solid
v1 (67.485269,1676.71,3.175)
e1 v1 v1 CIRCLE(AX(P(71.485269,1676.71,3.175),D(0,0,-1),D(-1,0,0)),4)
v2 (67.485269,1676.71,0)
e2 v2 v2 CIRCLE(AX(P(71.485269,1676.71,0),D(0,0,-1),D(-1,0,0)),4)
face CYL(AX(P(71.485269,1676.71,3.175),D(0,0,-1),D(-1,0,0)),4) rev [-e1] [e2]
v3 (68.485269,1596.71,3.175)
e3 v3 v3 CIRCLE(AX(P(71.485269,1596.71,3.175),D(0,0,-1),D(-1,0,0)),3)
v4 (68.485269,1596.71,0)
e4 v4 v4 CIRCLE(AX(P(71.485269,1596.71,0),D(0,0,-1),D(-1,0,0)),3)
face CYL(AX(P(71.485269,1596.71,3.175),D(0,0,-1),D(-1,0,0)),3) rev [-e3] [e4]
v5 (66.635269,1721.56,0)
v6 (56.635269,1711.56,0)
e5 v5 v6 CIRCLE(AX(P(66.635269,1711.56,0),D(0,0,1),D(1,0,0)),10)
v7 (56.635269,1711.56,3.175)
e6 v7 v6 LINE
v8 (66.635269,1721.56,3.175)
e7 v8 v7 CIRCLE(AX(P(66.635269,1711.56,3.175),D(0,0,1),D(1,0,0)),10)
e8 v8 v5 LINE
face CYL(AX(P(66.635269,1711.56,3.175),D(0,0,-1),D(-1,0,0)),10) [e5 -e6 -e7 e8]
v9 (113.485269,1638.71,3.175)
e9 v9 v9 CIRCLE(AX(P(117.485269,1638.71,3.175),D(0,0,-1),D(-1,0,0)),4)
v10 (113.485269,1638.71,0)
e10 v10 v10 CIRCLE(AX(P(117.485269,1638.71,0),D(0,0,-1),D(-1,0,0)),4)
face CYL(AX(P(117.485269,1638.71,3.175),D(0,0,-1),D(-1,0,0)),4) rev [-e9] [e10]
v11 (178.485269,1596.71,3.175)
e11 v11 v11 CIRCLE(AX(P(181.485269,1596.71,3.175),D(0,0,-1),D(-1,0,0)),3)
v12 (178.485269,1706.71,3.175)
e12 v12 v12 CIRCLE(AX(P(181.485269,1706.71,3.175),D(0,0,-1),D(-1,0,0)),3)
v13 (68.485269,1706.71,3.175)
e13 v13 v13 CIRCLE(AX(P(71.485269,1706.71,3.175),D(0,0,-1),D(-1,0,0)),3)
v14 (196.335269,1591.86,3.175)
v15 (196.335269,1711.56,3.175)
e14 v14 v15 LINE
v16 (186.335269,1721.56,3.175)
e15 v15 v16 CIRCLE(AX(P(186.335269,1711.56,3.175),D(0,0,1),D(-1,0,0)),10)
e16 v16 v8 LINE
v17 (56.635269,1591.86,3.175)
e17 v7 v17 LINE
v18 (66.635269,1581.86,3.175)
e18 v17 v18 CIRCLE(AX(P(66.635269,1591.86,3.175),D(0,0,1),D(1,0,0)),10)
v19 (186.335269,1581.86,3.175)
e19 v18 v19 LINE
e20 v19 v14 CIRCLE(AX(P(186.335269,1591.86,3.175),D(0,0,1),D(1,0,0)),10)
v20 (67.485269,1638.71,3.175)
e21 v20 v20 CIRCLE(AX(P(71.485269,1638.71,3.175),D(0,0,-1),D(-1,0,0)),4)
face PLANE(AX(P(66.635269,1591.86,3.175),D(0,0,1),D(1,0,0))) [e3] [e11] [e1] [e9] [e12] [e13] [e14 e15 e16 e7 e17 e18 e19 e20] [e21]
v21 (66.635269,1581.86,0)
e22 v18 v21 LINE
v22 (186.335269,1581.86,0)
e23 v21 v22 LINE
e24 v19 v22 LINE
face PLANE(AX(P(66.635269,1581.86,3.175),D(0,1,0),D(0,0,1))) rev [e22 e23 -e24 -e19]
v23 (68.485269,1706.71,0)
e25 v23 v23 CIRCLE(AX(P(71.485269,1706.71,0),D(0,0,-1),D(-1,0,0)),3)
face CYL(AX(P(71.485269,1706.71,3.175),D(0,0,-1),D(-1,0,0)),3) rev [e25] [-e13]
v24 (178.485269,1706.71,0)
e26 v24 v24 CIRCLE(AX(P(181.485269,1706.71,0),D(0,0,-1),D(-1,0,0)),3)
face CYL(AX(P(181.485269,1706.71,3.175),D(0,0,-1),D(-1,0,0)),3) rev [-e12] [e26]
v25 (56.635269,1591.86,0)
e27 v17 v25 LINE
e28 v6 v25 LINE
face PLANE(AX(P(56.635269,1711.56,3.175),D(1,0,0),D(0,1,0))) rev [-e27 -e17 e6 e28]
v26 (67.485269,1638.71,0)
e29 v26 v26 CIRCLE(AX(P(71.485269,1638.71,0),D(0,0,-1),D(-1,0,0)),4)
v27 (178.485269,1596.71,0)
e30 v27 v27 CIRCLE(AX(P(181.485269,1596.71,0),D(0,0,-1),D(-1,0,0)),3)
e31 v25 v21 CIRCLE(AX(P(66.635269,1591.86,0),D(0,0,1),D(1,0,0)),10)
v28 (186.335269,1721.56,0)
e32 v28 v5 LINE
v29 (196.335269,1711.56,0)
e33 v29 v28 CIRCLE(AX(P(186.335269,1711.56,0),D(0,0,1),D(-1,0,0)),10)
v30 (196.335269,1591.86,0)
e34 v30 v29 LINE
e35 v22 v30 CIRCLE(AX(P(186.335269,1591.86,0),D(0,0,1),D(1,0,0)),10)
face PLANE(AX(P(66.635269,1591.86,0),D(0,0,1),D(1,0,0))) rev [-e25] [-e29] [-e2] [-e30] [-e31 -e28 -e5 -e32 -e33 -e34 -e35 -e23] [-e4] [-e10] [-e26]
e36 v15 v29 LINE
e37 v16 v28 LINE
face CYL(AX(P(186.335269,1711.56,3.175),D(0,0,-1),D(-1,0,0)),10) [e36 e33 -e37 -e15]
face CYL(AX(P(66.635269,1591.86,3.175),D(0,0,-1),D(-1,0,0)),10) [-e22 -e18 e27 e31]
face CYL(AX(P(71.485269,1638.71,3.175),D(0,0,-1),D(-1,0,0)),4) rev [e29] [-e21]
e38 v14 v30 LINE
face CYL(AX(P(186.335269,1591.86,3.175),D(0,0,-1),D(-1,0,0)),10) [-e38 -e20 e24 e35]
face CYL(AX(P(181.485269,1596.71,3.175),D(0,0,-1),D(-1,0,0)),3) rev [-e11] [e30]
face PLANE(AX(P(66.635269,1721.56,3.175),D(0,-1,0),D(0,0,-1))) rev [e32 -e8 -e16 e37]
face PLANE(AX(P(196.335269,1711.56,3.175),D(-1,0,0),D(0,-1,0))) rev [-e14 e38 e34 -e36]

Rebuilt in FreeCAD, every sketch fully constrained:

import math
import FreeCAD as App
import Part
import Sketcher
Q = App.Units.Quantity

doc = App.newDocument("Part")
body = doc.addObject("PartDesign::Body", "Body")

sketch1 = body.newObject("Sketcher::SketchObject", "Sketch")
sketch1.AttachmentSupport = (doc.getObject("XY_Plane"), [""])
sketch1.MapMode = "FlatFace"
sketch1.addGeometry(Part.LineSegment(App.Vector(186.335269, 1721.56, 0), App.Vector(66.635269, 1721.56, 0)), False)
sketch1.addGeometry(Part.ArcOfCircle(Part.Circle(App.Vector(66.635269, 1711.56, 0), App.Vector(0, 0, 1), 10), math.radians(90), math.radians(180)), False)
sketch1.addGeometry(Part.LineSegment(App.Vector(56.635269, 1711.56, 0), App.Vector(56.635269, 1591.86, 0)), False)
sketch1.addGeometry(Part.ArcOfCircle(Part.Circle(App.Vector(66.635269, 1591.86, 0), App.Vector(0, 0, 1), 10), math.radians(180), math.radians(270)), False)
sketch1.addGeometry(Part.LineSegment(App.Vector(66.635269, 1581.86, 0), App.Vector(186.335269, 1581.86, 0)), False)
sketch1.addGeometry(Part.ArcOfCircle(Part.Circle(App.Vector(186.335269, 1591.86, 0), App.Vector(0, 0, 1), 10), math.radians(-90), math.radians(0)), False)
sketch1.addGeometry(Part.LineSegment(App.Vector(196.335269, 1591.86, 0), App.Vector(196.335269, 1711.56, 0)), False)
sketch1.addGeometry(Part.ArcOfCircle(Part.Circle(App.Vector(186.335269, 1711.56, 0), App.Vector(0, 0, 1), 10), math.radians(0), math.radians(90)), False)
sketch1.addConstraint(Sketcher.Constraint("Tangent", 0, 2, 1, 1))
sketch1.addConstraint(Sketcher.Constraint("Tangent", 1, 2, 2, 1))
sketch1.addConstraint(Sketcher.Constraint("Tangent", 2, 2, 3, 1))
sketch1.addConstraint(Sketcher.Constraint("Tangent", 3, 2, 4, 1))
sketch1.addConstraint(Sketcher.Constraint("Tangent", 4, 2, 5, 1))
sketch1.addConstraint(Sketcher.Constraint("Tangent", 5, 2, 6, 1))
sketch1.addConstraint(Sketcher.Constraint("Tangent", 6, 2, 7, 1))
sketch1.addConstraint(Sketcher.Constraint("Tangent", 7, 2, 0, 1))
sketch1.addConstraint(Sketcher.Constraint("Horizontal", 0))
sketch1.addConstraint(Sketcher.Constraint("Vertical", 2))
sketch1.addConstraint(Sketcher.Constraint("Horizontal", 4))
sketch1.addConstraint(Sketcher.Constraint("Vertical", 6))
sketch1.addConstraint(Sketcher.Constraint("Equal", 1, 3))
sketch1.addConstraint(Sketcher.Constraint("Equal", 3, 5))
sketch1.addConstraint(Sketcher.Constraint("Equal", 5, 7))
sketch1.addConstraint(Sketcher.Constraint("Equal", 4, 2))
sketch1.addConstraint(Sketcher.Constraint("Radius", 1, Q("10 mm")))
sketch1.addConstraint(Sketcher.Constraint("DistanceX", 0, 2, 0, 1, Q("119.7 mm")))
sketch1.addConstraint(Sketcher.Constraint("DistanceY", -1, 1, 1, 3, Q("1711.56 mm")))
sketch1.addConstraint(Sketcher.Constraint("DistanceX", -1, 1, 1, 3, Q("66.635269 mm")))
pad1 = body.newObject("PartDesign::Pad", "Pad")
pad1.Profile = sketch1
pad1.Length = 3.175

sketch2 = body.newObject("Sketcher::SketchObject", "Sketch001")
sketch2.AttachmentSupport = (doc.getObject("XY_Plane"), [""])
sketch2.MapMode = "FlatFace"
sketch2.addGeometry(Part.Circle(App.Vector(71.485269, 1638.71, 0), App.Vector(0, 0, 1), 4), False)
sketch2.addGeometry(Part.Circle(App.Vector(71.485269, 1676.71, 0), App.Vector(0, 0, 1), 4), False)
sketch2.addGeometry(Part.Circle(App.Vector(117.485269, 1638.71, 0), App.Vector(0, 0, 1), 4), False)
sketch2.addGeometry(Part.Circle(App.Vector(181.485269, 1706.71, 0), App.Vector(0, 0, 1), 3), False)
sketch2.addGeometry(Part.Circle(App.Vector(71.485269, 1706.71, 0), App.Vector(0, 0, 1), 3), False)
sketch2.addGeometry(Part.Circle(App.Vector(181.485269, 1596.71, 0), App.Vector(0, 0, 1), 3), False)
sketch2.addGeometry(Part.Circle(App.Vector(71.485269, 1596.71, 0), App.Vector(0, 0, 1), 3), False)
sketch2.addConstraint(Sketcher.Constraint("Equal", 0, 1))
sketch2.addConstraint(Sketcher.Constraint("Equal", 1, 2))
sketch2.addConstraint(Sketcher.Constraint("Equal", 3, 4))
sketch2.addConstraint(Sketcher.Constraint("Equal", 4, 5))
sketch2.addConstraint(Sketcher.Constraint("Equal", 5, 6))
sketch2.addConstraint(Sketcher.Constraint("Horizontal", 0, 3, 2, 3))
sketch2.addConstraint(Sketcher.Constraint("Horizontal", 3, 3, 4, 3))
sketch2.addConstraint(Sketcher.Constraint("Horizontal", 5, 3, 6, 3))
sketch2.addConstraint(Sketcher.Constraint("Vertical", 0, 3, 1, 3))
sketch2.addConstraint(Sketcher.Constraint("Vertical", 1, 3, 4, 3))
sketch2.addConstraint(Sketcher.Constraint("Vertical", 3, 3, 5, 3))
sketch2.addConstraint(Sketcher.Constraint("Vertical", 4, 3, 6, 3))
sketch2.addConstraint(Sketcher.Constraint("Diameter", 0, Q("8 mm")))
sketch2.addConstraint(Sketcher.Constraint("Diameter", 3, Q("6 mm")))
sketch2.addConstraint(Sketcher.Constraint("DistanceY", 0, 3, 1, 3, Q("38 mm")))
sketch2.addConstraint(Sketcher.Constraint("DistanceX", 0, 3, 2, 3, Q("46 mm")))
sketch2.addConstraint(Sketcher.Constraint("DistanceX", 2, 3, 3, 3, Q("64 mm")))
sketch2.addConstraint(Sketcher.Constraint("DistanceY", 2, 3, 3, 3, Q("68 mm")))
sketch2.addConstraint(Sketcher.Constraint("DistanceY", 5, 3, 2, 3, Q("42 mm")))
sketch2.addConstraint(Sketcher.Constraint("DistanceY", -1, 1, 0, 3, Q("1638.71 mm")))
sketch2.addConstraint(Sketcher.Constraint("DistanceX", -1, 1, 0, 3, Q("71.485269 mm")))
pocket1 = body.newObject("PartDesign::Pocket", "Pocket")
pocket1.Profile = sketch2
pocket1.Type = "ThroughAll"
pocket1.Reversed = True

doc.recompute()
